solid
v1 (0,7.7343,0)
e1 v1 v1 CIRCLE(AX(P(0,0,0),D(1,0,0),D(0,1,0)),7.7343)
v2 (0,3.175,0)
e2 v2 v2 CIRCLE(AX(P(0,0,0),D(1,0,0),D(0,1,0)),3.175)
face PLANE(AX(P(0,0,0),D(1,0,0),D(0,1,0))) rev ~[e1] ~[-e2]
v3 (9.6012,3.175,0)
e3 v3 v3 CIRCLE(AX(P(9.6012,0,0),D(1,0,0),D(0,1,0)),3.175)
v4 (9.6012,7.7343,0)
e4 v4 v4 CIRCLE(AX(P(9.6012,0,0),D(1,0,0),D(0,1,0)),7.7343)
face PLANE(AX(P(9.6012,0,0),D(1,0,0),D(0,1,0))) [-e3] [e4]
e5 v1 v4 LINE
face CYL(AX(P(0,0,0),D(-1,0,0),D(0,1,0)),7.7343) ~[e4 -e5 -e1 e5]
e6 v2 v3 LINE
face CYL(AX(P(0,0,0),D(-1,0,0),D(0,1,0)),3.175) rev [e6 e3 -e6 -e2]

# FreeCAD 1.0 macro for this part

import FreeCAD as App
import Part
import Sketcher
Q = App.Units.Quantity

doc = App.newDocument("Part")
body = doc.addObject("PartDesign::Body", "Body")

# Sketch on YZ plane
sketch1 = doc.addObject("Sketcher::SketchObject", "Sketch")
body.addObject(sketch1)
sketch1.AttachmentSupport = (doc.YZ_Plane, [""])
sketch1.MapMode = "FlatFace"
sketch1.addGeometry(Part.Circle(App.Vector(0, 0, 0), App.Vector(0, 0, 1), 7.7), False)
sketch1.addGeometry(Part.Circle(App.Vector(0, 0, 0), App.Vector(0, 0, 1), 3.2), False)
sketch1.addConstraint(Sketcher.Constraint("Coincident", 0, 3, -1, 1))
sketch1.addConstraint(Sketcher.Constraint("Coincident", 1, 3, -1, 1))
sketch1.addConstraint(Sketcher.Constraint("Diameter", 1, Q("0.25 in")))
sketch1.addConstraint(Sketcher.Constraint("Diameter", 0, Q("0.609 in")))
pad1 = doc.addObject("PartDesign::Pad", "Pad")
body.addObject(pad1)
pad1.Profile = sketch1
pad1.Length = Q("0.378 in")

doc.recompute()
